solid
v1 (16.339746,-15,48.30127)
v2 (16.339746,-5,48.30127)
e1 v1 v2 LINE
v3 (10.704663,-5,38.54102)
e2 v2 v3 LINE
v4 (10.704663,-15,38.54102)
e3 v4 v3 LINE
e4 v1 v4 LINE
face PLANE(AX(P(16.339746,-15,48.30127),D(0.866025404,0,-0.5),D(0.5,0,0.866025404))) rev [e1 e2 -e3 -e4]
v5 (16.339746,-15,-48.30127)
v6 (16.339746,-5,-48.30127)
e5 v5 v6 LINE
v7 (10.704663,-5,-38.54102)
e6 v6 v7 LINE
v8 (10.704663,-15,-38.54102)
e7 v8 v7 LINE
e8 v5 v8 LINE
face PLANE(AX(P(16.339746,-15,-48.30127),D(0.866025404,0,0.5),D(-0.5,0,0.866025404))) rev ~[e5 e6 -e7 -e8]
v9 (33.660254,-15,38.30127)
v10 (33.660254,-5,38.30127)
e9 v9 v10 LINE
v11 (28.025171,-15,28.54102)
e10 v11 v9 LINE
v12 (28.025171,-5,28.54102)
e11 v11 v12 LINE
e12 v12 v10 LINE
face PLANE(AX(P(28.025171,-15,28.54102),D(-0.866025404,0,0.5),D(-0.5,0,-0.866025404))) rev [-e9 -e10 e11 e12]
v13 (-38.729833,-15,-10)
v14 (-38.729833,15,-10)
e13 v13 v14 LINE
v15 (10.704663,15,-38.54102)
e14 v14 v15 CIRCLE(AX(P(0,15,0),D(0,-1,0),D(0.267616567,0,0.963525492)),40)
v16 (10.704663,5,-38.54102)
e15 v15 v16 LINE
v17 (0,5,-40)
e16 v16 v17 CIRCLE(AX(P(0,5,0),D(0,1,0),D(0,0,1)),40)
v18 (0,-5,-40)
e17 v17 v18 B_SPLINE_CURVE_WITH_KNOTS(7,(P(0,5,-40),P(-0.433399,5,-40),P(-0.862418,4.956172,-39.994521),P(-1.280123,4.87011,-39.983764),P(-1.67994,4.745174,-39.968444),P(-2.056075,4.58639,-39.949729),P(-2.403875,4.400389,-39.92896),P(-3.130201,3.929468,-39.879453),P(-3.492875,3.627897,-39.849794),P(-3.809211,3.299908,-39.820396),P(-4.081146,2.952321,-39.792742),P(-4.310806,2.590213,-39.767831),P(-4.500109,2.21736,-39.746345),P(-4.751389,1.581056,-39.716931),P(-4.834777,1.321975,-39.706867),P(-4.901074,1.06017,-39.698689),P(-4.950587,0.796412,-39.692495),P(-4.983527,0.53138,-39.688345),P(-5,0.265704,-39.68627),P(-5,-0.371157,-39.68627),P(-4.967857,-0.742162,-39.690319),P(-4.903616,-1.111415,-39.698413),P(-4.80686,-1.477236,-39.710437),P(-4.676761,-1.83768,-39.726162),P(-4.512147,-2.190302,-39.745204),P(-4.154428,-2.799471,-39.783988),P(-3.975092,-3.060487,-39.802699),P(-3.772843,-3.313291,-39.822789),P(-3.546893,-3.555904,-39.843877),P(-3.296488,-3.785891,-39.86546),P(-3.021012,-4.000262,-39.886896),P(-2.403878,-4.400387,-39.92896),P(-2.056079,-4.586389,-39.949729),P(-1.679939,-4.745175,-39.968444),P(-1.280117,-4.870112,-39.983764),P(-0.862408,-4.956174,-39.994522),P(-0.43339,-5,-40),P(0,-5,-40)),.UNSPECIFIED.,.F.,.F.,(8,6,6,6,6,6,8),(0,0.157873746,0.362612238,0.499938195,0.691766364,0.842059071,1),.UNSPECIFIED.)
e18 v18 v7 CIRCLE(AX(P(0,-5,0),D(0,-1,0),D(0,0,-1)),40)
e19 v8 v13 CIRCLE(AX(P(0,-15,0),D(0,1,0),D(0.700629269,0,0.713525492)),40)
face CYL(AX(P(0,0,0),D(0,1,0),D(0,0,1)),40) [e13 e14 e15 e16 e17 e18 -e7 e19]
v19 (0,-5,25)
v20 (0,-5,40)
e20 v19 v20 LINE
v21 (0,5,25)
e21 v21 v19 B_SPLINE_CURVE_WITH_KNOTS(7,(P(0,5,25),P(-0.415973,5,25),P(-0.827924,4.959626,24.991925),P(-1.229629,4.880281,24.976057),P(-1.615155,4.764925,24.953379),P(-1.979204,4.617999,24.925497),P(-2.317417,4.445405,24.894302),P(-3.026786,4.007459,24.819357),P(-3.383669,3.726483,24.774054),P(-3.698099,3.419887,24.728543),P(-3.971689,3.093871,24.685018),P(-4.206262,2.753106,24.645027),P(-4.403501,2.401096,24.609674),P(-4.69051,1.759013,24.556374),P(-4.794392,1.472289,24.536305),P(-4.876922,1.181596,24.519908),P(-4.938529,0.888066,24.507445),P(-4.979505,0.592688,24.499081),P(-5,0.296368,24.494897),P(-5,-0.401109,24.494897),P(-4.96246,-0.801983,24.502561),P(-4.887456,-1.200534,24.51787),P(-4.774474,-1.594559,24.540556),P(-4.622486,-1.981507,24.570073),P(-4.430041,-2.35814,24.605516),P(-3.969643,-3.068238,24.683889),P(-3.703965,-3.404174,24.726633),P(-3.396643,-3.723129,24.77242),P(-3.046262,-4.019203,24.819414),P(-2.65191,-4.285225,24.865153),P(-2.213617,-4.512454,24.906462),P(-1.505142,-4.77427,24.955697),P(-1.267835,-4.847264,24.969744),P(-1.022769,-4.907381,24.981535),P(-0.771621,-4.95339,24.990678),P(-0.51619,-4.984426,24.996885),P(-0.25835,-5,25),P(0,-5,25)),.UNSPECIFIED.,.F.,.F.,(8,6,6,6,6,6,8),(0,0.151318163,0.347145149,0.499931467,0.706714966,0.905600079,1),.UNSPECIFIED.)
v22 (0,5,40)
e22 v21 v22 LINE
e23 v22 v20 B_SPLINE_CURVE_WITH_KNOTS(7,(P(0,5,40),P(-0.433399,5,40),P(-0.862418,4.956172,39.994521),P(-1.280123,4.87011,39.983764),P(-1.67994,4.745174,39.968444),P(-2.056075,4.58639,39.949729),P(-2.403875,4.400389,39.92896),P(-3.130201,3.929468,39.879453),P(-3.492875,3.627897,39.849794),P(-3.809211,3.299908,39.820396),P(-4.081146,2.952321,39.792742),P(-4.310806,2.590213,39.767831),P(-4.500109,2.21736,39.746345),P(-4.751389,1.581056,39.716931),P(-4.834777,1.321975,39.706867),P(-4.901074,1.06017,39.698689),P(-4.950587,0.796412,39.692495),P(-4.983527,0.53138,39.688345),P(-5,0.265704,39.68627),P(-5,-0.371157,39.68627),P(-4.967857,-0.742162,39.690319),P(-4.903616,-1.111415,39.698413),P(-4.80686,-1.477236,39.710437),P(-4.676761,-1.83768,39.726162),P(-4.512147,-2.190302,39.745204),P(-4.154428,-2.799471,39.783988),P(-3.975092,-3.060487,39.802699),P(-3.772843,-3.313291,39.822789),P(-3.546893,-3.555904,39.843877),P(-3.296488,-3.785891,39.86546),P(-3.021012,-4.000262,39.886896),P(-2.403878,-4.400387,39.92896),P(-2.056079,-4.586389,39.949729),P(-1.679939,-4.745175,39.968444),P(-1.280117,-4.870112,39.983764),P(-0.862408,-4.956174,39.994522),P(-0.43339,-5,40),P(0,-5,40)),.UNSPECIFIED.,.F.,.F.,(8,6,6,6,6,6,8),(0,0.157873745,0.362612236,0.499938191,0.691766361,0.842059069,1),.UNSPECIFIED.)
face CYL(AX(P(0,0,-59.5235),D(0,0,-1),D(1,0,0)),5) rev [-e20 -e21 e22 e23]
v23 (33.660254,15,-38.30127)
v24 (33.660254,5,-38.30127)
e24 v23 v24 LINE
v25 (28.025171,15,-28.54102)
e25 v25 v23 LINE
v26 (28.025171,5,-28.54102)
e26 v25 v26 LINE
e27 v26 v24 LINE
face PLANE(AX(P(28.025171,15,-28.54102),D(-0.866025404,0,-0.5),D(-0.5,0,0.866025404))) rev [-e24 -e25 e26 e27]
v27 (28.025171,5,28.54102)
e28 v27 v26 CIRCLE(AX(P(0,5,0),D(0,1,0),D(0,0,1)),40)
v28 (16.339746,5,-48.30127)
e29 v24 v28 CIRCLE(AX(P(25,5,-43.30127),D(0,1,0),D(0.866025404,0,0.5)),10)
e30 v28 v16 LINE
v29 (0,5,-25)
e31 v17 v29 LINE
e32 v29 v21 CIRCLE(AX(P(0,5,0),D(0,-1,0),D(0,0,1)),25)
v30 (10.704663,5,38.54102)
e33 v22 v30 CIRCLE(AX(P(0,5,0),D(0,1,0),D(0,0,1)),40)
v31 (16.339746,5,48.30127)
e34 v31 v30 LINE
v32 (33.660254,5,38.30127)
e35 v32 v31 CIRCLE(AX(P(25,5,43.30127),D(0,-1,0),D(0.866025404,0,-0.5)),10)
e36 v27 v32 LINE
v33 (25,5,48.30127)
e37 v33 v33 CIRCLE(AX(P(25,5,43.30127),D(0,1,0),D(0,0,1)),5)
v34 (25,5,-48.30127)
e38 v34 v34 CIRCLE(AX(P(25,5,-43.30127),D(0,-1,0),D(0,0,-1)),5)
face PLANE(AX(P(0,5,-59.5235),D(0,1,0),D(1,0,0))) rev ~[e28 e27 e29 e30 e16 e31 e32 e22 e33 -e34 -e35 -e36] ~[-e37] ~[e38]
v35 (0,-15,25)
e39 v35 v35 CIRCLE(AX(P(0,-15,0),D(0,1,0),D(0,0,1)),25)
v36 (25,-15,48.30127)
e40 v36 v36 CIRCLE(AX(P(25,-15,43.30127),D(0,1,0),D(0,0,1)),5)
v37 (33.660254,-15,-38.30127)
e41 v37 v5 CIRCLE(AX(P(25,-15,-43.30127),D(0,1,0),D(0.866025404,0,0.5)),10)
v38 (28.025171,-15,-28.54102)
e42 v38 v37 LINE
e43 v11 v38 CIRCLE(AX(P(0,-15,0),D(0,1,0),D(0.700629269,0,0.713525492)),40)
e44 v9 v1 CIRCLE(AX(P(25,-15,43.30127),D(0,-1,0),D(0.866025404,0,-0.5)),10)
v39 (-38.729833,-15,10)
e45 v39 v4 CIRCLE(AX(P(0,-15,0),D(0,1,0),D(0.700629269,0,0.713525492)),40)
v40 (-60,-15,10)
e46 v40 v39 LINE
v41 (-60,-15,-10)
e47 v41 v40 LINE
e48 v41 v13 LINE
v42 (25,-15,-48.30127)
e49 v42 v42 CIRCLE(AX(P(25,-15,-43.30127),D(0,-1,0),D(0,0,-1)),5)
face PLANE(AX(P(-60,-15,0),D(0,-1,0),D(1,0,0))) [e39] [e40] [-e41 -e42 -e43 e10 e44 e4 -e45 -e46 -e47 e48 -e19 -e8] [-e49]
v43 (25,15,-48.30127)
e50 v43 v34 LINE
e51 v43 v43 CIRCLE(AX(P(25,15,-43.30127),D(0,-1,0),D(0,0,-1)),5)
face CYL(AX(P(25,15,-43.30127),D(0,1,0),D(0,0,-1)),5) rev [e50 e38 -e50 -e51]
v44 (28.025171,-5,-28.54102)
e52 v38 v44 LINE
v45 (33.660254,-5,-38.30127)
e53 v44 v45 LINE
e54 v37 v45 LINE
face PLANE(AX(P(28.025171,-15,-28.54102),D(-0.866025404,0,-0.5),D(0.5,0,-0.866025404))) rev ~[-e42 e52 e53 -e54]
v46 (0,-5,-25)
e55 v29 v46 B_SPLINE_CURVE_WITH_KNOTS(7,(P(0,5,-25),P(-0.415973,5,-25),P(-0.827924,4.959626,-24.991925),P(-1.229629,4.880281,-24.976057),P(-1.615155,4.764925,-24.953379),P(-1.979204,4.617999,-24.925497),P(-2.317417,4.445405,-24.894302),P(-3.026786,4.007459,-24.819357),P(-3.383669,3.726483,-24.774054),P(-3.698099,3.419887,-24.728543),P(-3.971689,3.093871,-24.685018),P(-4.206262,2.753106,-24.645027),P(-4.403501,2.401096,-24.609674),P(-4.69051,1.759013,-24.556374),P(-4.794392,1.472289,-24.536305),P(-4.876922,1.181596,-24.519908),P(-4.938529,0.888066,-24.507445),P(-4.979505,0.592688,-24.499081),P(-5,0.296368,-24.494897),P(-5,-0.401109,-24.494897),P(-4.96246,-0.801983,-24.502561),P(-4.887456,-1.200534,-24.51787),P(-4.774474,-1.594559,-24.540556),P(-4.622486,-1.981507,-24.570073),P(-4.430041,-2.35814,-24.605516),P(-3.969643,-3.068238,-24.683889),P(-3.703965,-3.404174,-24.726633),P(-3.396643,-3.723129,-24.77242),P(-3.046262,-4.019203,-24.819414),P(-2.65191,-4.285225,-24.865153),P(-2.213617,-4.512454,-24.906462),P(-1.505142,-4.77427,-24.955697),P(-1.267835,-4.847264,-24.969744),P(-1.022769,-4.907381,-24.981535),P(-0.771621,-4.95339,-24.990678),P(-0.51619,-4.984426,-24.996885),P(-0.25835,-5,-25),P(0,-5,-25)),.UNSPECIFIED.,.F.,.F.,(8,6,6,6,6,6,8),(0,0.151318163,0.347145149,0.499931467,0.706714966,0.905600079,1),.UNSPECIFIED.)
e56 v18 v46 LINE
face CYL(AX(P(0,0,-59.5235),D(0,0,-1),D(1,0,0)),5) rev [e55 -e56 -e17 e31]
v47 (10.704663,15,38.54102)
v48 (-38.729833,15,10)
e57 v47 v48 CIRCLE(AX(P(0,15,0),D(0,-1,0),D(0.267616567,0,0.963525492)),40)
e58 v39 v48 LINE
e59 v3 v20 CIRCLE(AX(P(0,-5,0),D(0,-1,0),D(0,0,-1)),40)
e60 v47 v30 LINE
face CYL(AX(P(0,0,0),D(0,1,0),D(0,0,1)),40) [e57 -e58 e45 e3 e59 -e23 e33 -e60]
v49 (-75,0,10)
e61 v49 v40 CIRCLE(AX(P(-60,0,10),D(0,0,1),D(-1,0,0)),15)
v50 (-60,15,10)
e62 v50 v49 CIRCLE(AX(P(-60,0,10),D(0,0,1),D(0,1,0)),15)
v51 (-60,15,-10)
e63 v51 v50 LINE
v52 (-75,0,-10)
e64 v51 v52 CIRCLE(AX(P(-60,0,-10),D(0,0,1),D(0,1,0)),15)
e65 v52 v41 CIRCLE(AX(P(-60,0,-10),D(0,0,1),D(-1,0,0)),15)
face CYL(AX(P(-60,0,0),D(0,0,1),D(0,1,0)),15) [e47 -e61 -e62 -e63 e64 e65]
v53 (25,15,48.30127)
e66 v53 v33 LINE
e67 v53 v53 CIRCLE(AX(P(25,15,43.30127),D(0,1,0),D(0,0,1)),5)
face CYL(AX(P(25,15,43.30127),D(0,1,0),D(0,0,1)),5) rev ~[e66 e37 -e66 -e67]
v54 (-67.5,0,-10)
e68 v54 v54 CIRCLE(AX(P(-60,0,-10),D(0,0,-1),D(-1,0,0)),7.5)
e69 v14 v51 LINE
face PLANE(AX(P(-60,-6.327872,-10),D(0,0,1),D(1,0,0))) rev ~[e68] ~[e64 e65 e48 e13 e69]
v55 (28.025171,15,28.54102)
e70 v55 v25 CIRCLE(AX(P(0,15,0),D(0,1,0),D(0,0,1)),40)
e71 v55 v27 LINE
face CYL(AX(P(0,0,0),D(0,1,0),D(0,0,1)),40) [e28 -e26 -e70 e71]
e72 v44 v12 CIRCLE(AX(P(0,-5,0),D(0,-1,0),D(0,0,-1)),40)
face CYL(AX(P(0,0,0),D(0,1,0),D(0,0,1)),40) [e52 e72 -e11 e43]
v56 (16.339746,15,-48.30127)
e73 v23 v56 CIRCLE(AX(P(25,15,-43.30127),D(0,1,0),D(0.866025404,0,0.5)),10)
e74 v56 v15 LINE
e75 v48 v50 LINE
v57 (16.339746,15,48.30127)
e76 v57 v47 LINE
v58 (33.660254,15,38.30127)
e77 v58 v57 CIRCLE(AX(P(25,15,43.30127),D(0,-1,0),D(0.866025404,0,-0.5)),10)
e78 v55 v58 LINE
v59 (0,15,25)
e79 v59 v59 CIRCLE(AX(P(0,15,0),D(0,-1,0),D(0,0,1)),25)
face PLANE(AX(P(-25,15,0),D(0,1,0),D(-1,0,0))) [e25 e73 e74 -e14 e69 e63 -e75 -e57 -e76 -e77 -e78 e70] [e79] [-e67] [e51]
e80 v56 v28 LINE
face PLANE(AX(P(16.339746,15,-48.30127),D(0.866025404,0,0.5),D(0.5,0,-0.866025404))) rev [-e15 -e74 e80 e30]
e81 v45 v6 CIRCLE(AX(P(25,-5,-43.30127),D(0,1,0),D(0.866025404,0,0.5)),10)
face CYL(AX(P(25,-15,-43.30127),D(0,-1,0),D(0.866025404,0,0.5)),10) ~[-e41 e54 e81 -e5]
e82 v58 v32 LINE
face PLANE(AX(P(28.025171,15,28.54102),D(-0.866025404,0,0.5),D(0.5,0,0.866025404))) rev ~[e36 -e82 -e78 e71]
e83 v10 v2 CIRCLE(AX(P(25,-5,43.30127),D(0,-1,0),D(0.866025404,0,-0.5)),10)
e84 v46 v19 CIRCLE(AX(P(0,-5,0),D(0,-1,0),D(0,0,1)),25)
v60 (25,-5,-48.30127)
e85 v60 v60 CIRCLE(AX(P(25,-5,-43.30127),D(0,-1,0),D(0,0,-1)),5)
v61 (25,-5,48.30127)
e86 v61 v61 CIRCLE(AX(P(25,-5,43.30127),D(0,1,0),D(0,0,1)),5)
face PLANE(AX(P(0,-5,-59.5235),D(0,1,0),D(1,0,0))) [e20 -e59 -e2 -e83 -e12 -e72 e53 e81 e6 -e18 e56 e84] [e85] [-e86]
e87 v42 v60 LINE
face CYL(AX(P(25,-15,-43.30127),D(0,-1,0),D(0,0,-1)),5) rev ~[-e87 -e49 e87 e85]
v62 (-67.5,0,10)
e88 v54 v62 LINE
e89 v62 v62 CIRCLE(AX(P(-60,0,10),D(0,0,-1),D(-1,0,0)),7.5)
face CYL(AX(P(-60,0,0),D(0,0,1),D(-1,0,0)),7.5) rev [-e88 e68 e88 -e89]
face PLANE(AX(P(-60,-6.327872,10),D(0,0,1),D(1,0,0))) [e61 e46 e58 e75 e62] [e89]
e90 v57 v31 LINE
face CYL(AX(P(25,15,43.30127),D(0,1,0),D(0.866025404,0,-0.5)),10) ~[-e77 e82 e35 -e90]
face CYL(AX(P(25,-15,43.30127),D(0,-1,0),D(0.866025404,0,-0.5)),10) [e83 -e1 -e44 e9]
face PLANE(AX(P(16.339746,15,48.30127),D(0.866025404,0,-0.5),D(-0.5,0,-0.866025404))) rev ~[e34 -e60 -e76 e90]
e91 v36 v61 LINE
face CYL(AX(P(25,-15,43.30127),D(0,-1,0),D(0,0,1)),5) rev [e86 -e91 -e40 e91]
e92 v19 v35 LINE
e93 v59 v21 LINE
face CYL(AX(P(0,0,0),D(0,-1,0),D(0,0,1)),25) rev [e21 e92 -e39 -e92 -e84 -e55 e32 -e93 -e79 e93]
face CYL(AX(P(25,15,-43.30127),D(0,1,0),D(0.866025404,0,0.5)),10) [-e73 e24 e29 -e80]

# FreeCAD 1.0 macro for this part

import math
import FreeCAD as App
import Part
import Sketcher

V = App.Vector
Q = App.Units.Quantity

doc = App.newDocument("Part")
body = doc.addObject("PartDesign::Body", "Body")

# Sketch on XZ plane
sketch1 = body.newObject("Sketcher::SketchObject", "Sketch")
sketch1.AttachmentSupport = (doc.getObject("XZ_Plane"), [""])
sketch1.MapMode = "FlatFace"
sketch1.addGeometry(Part.Circle(V(0, 0, 0), V(0, 0, 1), 40), False)
sketch1.addGeometry(Part.Circle(V(0, 0, 0), V(0, 0, 1), 25), False)
sketch1.addConstraint(Sketcher.Constraint("Coincident", 0, 3, -1, 1))
sketch1.addConstraint(Sketcher.Constraint("Coincident", 1, 3, -1, 1))
sketch1.addConstraint(Sketcher.Constraint("Diameter", 0, 80.0))
sketch1.addConstraint(Sketcher.Constraint("Diameter", 1, 50.0))
pad1 = body.newObject("PartDesign::Pad", "Pad")
pad1.Profile = sketch1
pad1.Length = 30
pad1.Midplane = True

# Sketch on XY plane
sketch2 = body.newObject("Sketcher::SketchObject", "Sketch001")
sketch2.AttachmentSupport = (doc.getObject("XY_Plane"), [""])
sketch2.MapMode = "FlatFace"
sketch2.addGeometry(Part.LineSegment(V(0, -5, 0), V(40, -5, 0)), False)
sketch2.addGeometry(Part.LineSegment(V(40, -5, 0), V(40, 5, 0)), False)
sketch2.addGeometry(Part.LineSegment(V(40, 5, 0), V(0, 5, 0)), False)
sketch2.addGeometry(Part.ArcOfCircle(Part.Circle(V(0, 0, 0), V(0, 0, 1), 5), math.radians(90), math.radians(270)), False)
sketch2.addConstraint(Sketcher.Constraint("Coincident", 0, 2, 1, 1))
sketch2.addConstraint(Sketcher.Constraint("Coincident", 1, 2, 2, 1))
sketch2.addConstraint(Sketcher.Constraint("Tangent", 2, 2, 3, 1))
sketch2.addConstraint(Sketcher.Constraint("Tangent", 3, 2, 0, 1))
sketch2.addConstraint(Sketcher.Constraint("Horizontal", 0))
sketch2.addConstraint(Sketcher.Constraint("Vertical", 1))
sketch2.addConstraint(Sketcher.Constraint("Horizontal", 2))
sketch2.addConstraint(Sketcher.Constraint("Coincident", 3, 3, -1, 1))
sketch2.addConstraint(Sketcher.Constraint("Radius", 3, 5.0))
sketch2.addConstraint(Sketcher.Constraint("DistanceX", 0, 1, 0, 2, 40.0))
pocket1 = body.newObject("PartDesign::Pocket", "Pocket")
pocket1.Profile = sketch2
pocket1.Type = "ThroughAll"
pocket1.Midplane = True

# Sketch on XZ plane
sketch3 = body.newObject("Sketcher::SketchObject", "Sketch002")
sketch3.AttachmentSupport = (doc.getObject("XZ_Plane"), [""])
sketch3.MapMode = "FlatFace"
sketch3.AttachmentOffset = App.Placement(V(0, 0, -15), App.Rotation())
sketch3.addGeometry(Part.LineSegment(V(11, 39, 0), V(16, 48, 0)), False)
sketch3.addGeometry(Part.ArcOfCircle(Part.Circle(V(25, 43, 0), V(0, 0, 1), 10), math.radians(-30), math.radians(150)), False)
sketch3.addGeometry(Part.LineSegment(V(34, 38, 0), V(28, 29, 0)), False)
sketch3.addGeometry(Part.ArcOfCircle(Part.Circle(V(0, 0, 0), V(0, 0, 1), 40), math.radians(46), math.radians(74)), False)
sketch3.addGeometry(Part.Circle(V(25, 43, 0), V(0, 0, 1), 5), False)
sketch3.addConstraint(Sketcher.Constraint("Tangent", 0, 2, 1, 2))
sketch3.addConstraint(Sketcher.Constraint("Tangent", 1, 1, 2, 1))
sketch3.addConstraint(Sketcher.Constraint("Coincident", 2, 2, 3, 1))
sketch3.addConstraint(Sketcher.Constraint("Coincident", 3, 2, 0, 1))
sketch3.addConstraint(Sketcher.Constraint("Coincident", 3, 3, -1, 1))
sketch3.addConstraint(Sketcher.Constraint("Coincident", 4, 3, 1, 3))
sketch3.addConstraint(Sketcher.Constraint("Parallel", 0, 2))
sketch3.addConstraint(Sketcher.Constraint("Equal", 0, 2))
sketch3.addConstraint(Sketcher.Constraint("Diameter", 4, 10.0))
sketch3.addConstraint(Sketcher.Constraint("Radius", 1, 10.0))
sketch3.addConstraint(Sketcher.Constraint("Radius", 3, 40.0))
sketch3.addConstraint(Sketcher.Constraint("Angle", 0, Q("60 deg")))
sketch3.addConstraint(Sketcher.Constraint("DistanceX", -1, 1, 1, 3, 25.0))
pad2 = body.newObject("PartDesign::Pad", "Pad001")
pad2.Profile = sketch3
pad2.Length = 10
doc.recompute()

mirrored = body.newObject("PartDesign::Mirrored", "Mirrored")
mirrored.Originals = [pad2]
mirrored.MirrorPlane = (doc.getObject("XY_Plane"), [""])
body.Tip = mirrored
doc.recompute()

mirrored2 = body.newObject("PartDesign::Mirrored", "Mirrored001")
mirrored2.Originals = [pad2]
mirrored2.MirrorPlane = (doc.getObject("XZ_Plane"), [""])
body.Tip = mirrored2

# Sketch on XZ plane
sketch4 = body.newObject("Sketcher::SketchObject", "Sketch003")
sketch4.AttachmentSupport = (doc.getObject("XZ_Plane"), [""])
sketch4.MapMode = "FlatFace"
sketch4.AttachmentOffset = App.Placement(V(0, 0, 15), App.Rotation())
sketch4.addGeometry(Part.LineSegment(V(11, -39, 0), V(16, -48, 0)), False)
sketch4.addGeometry(Part.ArcOfCircle(Part.Circle(V(25, -43, 0), V(0, 0, 1), 10), math.radians(-150), math.radians(30)), False)
sketch4.addGeometry(Part.LineSegment(V(34, -38, 0), V(28, -29, 0)), False)
sketch4.addGeometry(Part.ArcOfCircle(Part.Circle(V(0, 0, 0), V(0, 0, 1), 40), math.radians(-74), math.radians(-46)), False)
sketch4.addGeometry(Part.Circle(V(25, -43, 0), V(0, 0, 1), 5), False)
sketch4.addConstraint(Sketcher.Constraint("Tangent", 0, 2, 1, 1))
sketch4.addConstraint(Sketcher.Constraint("Tangent", 1, 2, 2, 1))
sketch4.addConstraint(Sketcher.Constraint("Coincident", 2, 2, 3, 2))
sketch4.addConstraint(Sketcher.Constraint("Coincident", 3, 1, 0, 1))
sketch4.addConstraint(Sketcher.Constraint("Coincident", 3, 3, -1, 1))
sketch4.addConstraint(Sketcher.Constraint("Coincident", 4, 3, 1, 3))
sketch4.addConstraint(Sketcher.Constraint("Parallel", 0, 2))
sketch4.addConstraint(Sketcher.Constraint("Equal", 0, 2))
sketch4.addConstraint(Sketcher.Constraint("Diameter", 4, 10.0))
sketch4.addConstraint(Sketcher.Constraint("Radius", 1, 10.0))
sketch4.addConstraint(Sketcher.Constraint("Radius", 3, 40.0))
sketch4.addConstraint(Sketcher.Constraint("Angle", 0, Q("-60 deg")))
sketch4.addConstraint(Sketcher.Constraint("DistanceX", -1, 1, 1, 3, 25.0))
pad3 = body.newObject("PartDesign::Pad", "Pad002")
pad3.Profile = sketch4
pad3.Length = 10
pad3.Reversed = True

# Sketch on XY plane
sketch5 = body.newObject("Sketcher::SketchObject", "Sketch004")
sketch5.AttachmentSupport = (doc.getObject("XY_Plane"), [""])
sketch5.MapMode = "FlatFace"
sketch5.addGeometry(Part.LineSegment(V(-25, 15, 0), V(-60, 15, 0)), False)
sketch5.addGeometry(Part.ArcOfCircle(Part.Circle(V(-60, 0, 0), V(0, 0, 1), 15), math.radians(90), math.radians(180)), False)
sketch5.addGeometry(Part.ArcOfCircle(Part.Circle(V(-60, 0, 0), V(0, 0, 1), 15), math.radians(180), math.radians(270)), False)
sketch5.addGeometry(Part.LineSegment(V(-60, -15, 0), V(-25, -15, 0)), False)
sketch5.addGeometry(Part.LineSegment(V(-25, -15, 0), V(-25, 15, 0)), False)
sketch5.addGeometry(Part.Circle(V(-60, 0, 0), V(0, 0, 1), 8), False)
sketch5.addConstraint(Sketcher.Constraint("Tangent", 0, 2, 1, 1))
sketch5.addConstraint(Sketcher.Constraint("Tangent", 1, 2, 2, 1))
sketch5.addConstraint(Sketcher.Constraint("Tangent", 2, 2, 3, 1))
sketch5.addConstraint(Sketcher.Constraint("Coincident", 3, 2, 4, 1))
sketch5.addConstraint(Sketcher.Constraint("Coincident", 4, 2, 0, 1))
sketch5.addConstraint(Sketcher.Constraint("Horizontal", 0))
sketch5.addConstraint(Sketcher.Constraint("Horizontal", 3))
sketch5.addConstraint(Sketcher.Constraint("Vertical", 4))
sketch5.addConstraint(Sketcher.Constraint("Coincident", 5, 3, 1, 3))
sketch5.addConstraint(Sketcher.Constraint("Equal", 1, 2))
sketch5.addConstraint(Sketcher.Constraint("PointOnObject", 1, 3, -1))
sketch5.addConstraint(Sketcher.Constraint("PointOnObject", 1, 2, -1))
sketch5.addConstraint(Sketcher.Constraint("Diameter", 5, 15.0))
sketch5.addConstraint(Sketcher.Constraint("Radius", 1, 15.0))
sketch5.addConstraint(Sketcher.Constraint("DistanceX", 0, 2, 0, 1, 35.0))
sketch5.addConstraint(Sketcher.Constraint("DistanceX", 1, 3, -1, 1, 60.0))
pad4 = body.newObject("PartDesign::Pad", "Pad003")
pad4.Profile = sketch5
pad4.Length = 20
pad4.Midplane = True

doc.recompute()
